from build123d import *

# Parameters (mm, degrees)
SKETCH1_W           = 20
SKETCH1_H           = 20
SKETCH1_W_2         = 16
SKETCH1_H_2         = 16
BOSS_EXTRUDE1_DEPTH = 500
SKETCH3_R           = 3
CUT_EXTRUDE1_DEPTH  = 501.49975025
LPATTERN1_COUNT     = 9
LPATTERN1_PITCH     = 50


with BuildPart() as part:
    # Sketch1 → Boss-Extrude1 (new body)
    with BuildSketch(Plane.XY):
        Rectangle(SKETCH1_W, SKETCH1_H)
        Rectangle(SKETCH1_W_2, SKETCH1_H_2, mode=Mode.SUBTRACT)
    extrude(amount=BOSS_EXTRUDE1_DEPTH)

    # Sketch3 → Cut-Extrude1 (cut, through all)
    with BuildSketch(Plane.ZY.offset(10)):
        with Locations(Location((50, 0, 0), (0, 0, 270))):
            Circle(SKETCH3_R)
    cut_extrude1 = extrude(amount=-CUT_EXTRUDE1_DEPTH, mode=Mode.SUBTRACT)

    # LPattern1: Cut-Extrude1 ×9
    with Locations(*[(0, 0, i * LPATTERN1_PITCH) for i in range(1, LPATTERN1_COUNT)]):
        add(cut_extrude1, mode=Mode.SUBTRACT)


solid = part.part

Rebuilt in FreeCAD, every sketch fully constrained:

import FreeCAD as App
import Part
import Sketcher
from FreeCAD import Vector
Q = App.Units.Quantity

doc = App.newDocument("Part")
body = doc.addObject("PartDesign::Body", "Body")

# Sketch on XY plane
sketch1 = doc.addObject("Sketcher::SketchObject", "Sketch")
body.addObject(sketch1)
sketch1.AttachmentSupport = (doc.XY_Plane, [""])
sketch1.MapMode = "FlatFace"
sketch1.addGeometry([
    Part.LineSegment(Vector(-10, 10, 0), Vector(-10, -10, 0)),  # 0
    Part.LineSegment(Vector(-10, -10, 0), Vector(10, -10, 0)),  # 1
    Part.LineSegment(Vector(10, -10, 0), Vector(10, 10, 0)),  # 2
    Part.LineSegment(Vector(10, 10, 0), Vector(-10, 10, 0)),  # 3
    Part.LineSegment(Vector(8, -8, 0), Vector(-8, -8, 0)),  # 4
    Part.LineSegment(Vector(-8, -8, 0), Vector(-8, 8, 0)),  # 5
    Part.LineSegment(Vector(-8, 8, 0), Vector(8, 8, 0)),  # 6
    Part.LineSegment(Vector(8, 8, 0), Vector(8, -8, 0)),  # 7
], False)
sketch1.addConstraint([
    Sketcher.Constraint("Coincident", 0, 2, 1, 1),
    Sketcher.Constraint("Coincident", 1, 2, 2, 1),
    Sketcher.Constraint("Coincident", 2, 2, 3, 1),
    Sketcher.Constraint("Coincident", 3, 2, 0, 1),
    Sketcher.Constraint("Coincident", 4, 2, 5, 1),
    Sketcher.Constraint("Coincident", 5, 2, 6, 1),
    Sketcher.Constraint("Coincident", 6, 2, 7, 1),
    Sketcher.Constraint("Coincident", 7, 2, 4, 1),
    Sketcher.Constraint("Vertical", 0),
    Sketcher.Constraint("Horizontal", 1),
    Sketcher.Constraint("Vertical", 2),
    Sketcher.Constraint("Horizontal", 3),
    Sketcher.Constraint("Horizontal", 4),
    Sketcher.Constraint("Vertical", 5),
    Sketcher.Constraint("Horizontal", 6),
    Sketcher.Constraint("Vertical", 7),
    Sketcher.Constraint("Symmetric", 0, 2, 2, 2, -1, 1),
    Sketcher.Constraint("Symmetric", 4, 2, 6, 2, -1, 1),
    Sketcher.Constraint("Equal", 3, 0),
    Sketcher.Constraint("Equal", 6, 5),
    Sketcher.Constraint("DistanceX", 1, 1, 1, 2, Q("20 mm")),
    Sketcher.Constraint("DistanceX", 4, 2, 4, 1, Q("16 mm")),
])
pad1 = doc.addObject("PartDesign::Pad", "Pad")
body.addObject(pad1)
pad1.Profile = sketch1
pad1.Length = 500

# Sketch on YZ plane
sketch2 = doc.addObject("Sketcher::SketchObject", "Sketch001")
body.addObject(sketch2)
sketch2.AttachmentSupport = (doc.YZ_Plane, [""])
sketch2.MapMode = "FlatFace"
sketch2.AttachmentOffset = App.Placement(Vector(0, 0, -10), App.Rotation())
sketch2.addGeometry(Part.Circle(Vector(0, 50, 0), Vector(0, 0, 1), 3), False)
sketch2.addConstraint([
    Sketcher.Constraint("PointOnObject", 0, 3, -2),
    Sketcher.Constraint("Diameter", 0, Q("6 mm")),
    Sketcher.Constraint("DistanceY", -1, 1, 0, 3, Q("50 mm")),
])
pocket1 = doc.addObject("PartDesign::Pocket", "Pocket")
body.addObject(pocket1)
pocket1.Profile = sketch2
pocket1.Type = "ThroughAll"
pocket1.Reversed = True
doc.recompute()

linearpattern = doc.addObject("PartDesign::LinearPattern", "LinearPattern")
body.addObject(linearpattern)
linearpattern.Originals = [pocket1]
linearpattern.Direction = (doc.Z_Axis, [""])
linearpattern.Mode = "offset"
linearpattern.Offset = 50
linearpattern.Occurrences = 9
body.Tip = linearpattern

doc.recompute()
